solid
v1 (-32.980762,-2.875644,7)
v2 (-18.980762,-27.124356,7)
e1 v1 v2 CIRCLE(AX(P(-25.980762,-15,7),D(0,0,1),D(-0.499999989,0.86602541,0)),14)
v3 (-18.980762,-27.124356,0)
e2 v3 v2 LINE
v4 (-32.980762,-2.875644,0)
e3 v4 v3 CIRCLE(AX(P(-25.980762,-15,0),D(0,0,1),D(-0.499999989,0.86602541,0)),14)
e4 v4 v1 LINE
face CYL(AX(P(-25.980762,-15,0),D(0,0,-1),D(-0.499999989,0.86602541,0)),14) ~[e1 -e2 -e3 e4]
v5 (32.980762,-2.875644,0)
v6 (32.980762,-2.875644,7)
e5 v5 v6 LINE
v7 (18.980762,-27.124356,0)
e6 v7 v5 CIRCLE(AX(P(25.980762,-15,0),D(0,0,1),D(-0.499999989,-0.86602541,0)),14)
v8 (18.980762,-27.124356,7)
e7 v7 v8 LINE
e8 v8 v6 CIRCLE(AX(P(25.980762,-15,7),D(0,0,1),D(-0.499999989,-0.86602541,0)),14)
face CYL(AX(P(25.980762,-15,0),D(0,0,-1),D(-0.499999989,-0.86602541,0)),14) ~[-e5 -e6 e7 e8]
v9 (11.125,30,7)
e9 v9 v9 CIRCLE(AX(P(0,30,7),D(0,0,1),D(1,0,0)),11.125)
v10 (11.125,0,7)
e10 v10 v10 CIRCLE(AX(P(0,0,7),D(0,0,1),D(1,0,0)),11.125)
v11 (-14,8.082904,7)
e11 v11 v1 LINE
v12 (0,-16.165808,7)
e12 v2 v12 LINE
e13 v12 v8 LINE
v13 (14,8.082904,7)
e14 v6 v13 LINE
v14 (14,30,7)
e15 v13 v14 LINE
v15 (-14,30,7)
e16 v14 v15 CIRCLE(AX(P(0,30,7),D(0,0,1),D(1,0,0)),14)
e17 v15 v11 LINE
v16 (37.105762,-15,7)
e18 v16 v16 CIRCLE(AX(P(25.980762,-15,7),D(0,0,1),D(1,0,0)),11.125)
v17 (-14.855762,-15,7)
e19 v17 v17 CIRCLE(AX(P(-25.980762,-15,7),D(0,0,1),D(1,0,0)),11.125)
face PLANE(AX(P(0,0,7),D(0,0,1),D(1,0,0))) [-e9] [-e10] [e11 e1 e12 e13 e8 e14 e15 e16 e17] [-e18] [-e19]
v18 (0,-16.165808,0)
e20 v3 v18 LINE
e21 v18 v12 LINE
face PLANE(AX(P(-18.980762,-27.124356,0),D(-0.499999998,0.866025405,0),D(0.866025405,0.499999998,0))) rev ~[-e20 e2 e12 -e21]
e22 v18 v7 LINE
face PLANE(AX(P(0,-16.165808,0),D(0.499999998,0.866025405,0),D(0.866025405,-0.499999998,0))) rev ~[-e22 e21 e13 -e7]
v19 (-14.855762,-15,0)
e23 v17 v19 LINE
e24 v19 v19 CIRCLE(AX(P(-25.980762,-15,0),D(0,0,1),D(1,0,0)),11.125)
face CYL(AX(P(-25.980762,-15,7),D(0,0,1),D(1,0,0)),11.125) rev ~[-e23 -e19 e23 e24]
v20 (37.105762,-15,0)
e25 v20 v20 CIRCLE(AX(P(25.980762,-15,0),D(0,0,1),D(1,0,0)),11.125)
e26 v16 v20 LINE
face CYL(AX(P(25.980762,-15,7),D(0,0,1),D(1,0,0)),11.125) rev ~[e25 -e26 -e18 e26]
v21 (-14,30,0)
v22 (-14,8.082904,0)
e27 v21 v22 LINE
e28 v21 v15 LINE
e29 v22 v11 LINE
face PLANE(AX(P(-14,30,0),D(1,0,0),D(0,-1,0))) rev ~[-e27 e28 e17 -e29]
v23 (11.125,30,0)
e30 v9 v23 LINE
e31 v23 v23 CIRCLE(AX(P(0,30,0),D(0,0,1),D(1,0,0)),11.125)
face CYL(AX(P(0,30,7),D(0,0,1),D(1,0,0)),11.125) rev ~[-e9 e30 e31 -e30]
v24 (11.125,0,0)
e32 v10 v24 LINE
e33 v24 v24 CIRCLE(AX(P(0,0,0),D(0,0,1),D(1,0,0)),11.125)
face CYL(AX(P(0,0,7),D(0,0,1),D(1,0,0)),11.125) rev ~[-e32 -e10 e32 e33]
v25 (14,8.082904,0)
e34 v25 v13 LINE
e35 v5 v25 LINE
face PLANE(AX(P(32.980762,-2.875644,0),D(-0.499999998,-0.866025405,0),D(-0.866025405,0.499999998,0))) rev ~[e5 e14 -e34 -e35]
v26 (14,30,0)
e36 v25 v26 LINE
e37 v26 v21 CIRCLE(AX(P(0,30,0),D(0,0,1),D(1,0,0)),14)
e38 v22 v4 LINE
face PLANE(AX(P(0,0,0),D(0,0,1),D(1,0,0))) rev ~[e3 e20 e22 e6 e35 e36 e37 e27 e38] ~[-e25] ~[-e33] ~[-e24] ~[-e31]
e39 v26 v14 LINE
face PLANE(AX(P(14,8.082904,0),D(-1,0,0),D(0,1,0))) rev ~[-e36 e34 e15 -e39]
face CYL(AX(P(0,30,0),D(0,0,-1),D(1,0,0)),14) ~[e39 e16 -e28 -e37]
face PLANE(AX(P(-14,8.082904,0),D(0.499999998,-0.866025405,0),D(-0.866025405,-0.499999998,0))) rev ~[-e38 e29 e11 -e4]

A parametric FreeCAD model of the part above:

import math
import FreeCAD as App
import Part
import Sketcher
from FreeCAD import Vector

doc = App.newDocument("Part")
params = doc.addObject("Spreadsheet::Sheet", "Params")
for row, (alias, value) in enumerate([
    ("sketch1_radius", "14 mm"),
    ("sketch1_diameter", "18.25 mm"),
    ("pad1_length", "7 mm"),
    ("sketch2_diameter", "22.25 mm"),
    ("pocket1_length", "7 mm"),
], start=1):
    params.set(f"A{row}", alias)
    params.set(f"B{row}", "=" + value)
    params.setAlias(f"B{row}", alias)

body = doc.addObject("PartDesign::Body", "Body")

# Sketch on XY plane
sketch1 = doc.addObject("Sketcher::SketchObject", "Sketch")
body.addObject(sketch1)
sketch1.AttachmentSupport = (doc.XY_Plane, [""])
sketch1.MapMode = "FlatFace"
sketch1.addGeometry([
    Part.ArcOfCircle(Part.Circle(Vector(0, 30, 0), Vector(0, 0, 1), 14), math.radians(0), math.radians(180)),  # 0
    Part.LineSegment(Vector(-14, 30, 0), Vector(-14, 8.082904, 0)),  # 1
    Part.LineSegment(Vector(-14, 8.082904, 0), Vector(-32.980762, -2.875644, 0)),  # 2
    Part.ArcOfCircle(Part.Circle(Vector(-25.980762, -15, 0), Vector(0, 0, 1), 14), math.radians(119.999999), math.radians(299.999999)),  # 3
    Part.LineSegment(Vector(-18.980762, -27.124356, 0), Vector(0, -16.165808, 0)),  # 4
    Part.LineSegment(Vector(0, -16.165808, 0), Vector(18.980762, -27.124356, 0)),  # 5
    Part.ArcOfCircle(Part.Circle(Vector(25.980762, -15, 0), Vector(0, 0, 1), 14), math.radians(-119.999999), math.radians(60.000001)),  # 6
    Part.LineSegment(Vector(32.980762, -2.875644, 0), Vector(14, 8.082904, 0)),  # 7
    Part.LineSegment(Vector(14, 8.082904, 0), Vector(14, 30, 0)),  # 8
    Part.Circle(Vector(-25.980762, -15, 0), Vector(0, 0, 1), 9.125),  # 9
    Part.Circle(Vector(25.980762, -15, 0), Vector(0, 0, 1), 9.125),  # 10
    Part.Circle(Vector(0, 0, 0), Vector(0, 0, 1), 9.125),  # 11
    Part.Circle(Vector(0, 30, 0), Vector(0, 0, 1), 9.125),  # 12
], False)
sketch1.addConstraint([
    Sketcher.Constraint("Tangent", 0, 2, 1, 1),
    Sketcher.Constraint("Coincident", 1, 2, 2, 1),
    Sketcher.Constraint("Tangent", 2, 2, 3, 1),
    Sketcher.Constraint("Tangent", 3, 2, 4, 1),
    Sketcher.Constraint("Coincident", 4, 2, 5, 1),
    Sketcher.Constraint("Tangent", 5, 2, 6, 1),
    Sketcher.Constraint("Tangent", 6, 2, 7, 1),
    Sketcher.Constraint("Coincident", 7, 2, 8, 1),
    Sketcher.Constraint("Tangent", 8, 2, 0, 1),
    Sketcher.Constraint("Vertical", 1),
    Sketcher.Constraint("Vertical", 8),
    Sketcher.Constraint("Coincident", 11, 3, -1, 1),
    Sketcher.Constraint("Coincident", 9, 3, 3, 3),
    Sketcher.Constraint("Coincident", 10, 3, 6, 3),
    Sketcher.Constraint("Coincident", 12, 3, 0, 3),
    Sketcher.Constraint("Equal", 0, 3),
    Sketcher.Constraint("Equal", 3, 6),
    Sketcher.Constraint("Equal", 9, 10),
    Sketcher.Constraint("Equal", 10, 11),
    Sketcher.Constraint("Equal", 11, 12),
    Sketcher.Constraint("Symmetric", 3, 3, 6, 3, -2),
    Sketcher.Constraint("Symmetric", 1, 2, 7, 2, -2),
    Sketcher.Constraint("PointOnObject", 4, 2, -2),
    Sketcher.Constraint("Parallel", 2, 4),
    Sketcher.Constraint("Equal", 2, 4),
    Sketcher.Constraint("Radius", 0, 14.0),
    Sketcher.Constraint("Diameter", 9, 18.25),
    Sketcher.Constraint("DistanceY", -1, 1, 0, 3, 30.0),
    Sketcher.Constraint("DistanceY", 3, 3, -1, 1, 15.0),
    Sketcher.Constraint("DistanceY", 1, 2, 1, 1, 21.917096),
])
sketch1.setExpression("Constraints[25]", "Params.sketch1_radius")
sketch1.setExpression("Constraints[26]", "Params.sketch1_diameter")
pad1 = doc.addObject("PartDesign::Pad", "Pad")
body.addObject(pad1)
pad1.Profile = sketch1
pad1.setExpression("Length", "Params.pad1_length")

# Sketch on XY plane
sketch2 = doc.addObject("Sketcher::SketchObject", "Sketch001")
body.addObject(sketch2)
sketch2.AttachmentSupport = (doc.XY_Plane, [""])
sketch2.MapMode = "FlatFace"
sketch2.AttachmentOffset = App.Placement(Vector(0, 0, 7), App.Rotation())
sketch2.addGeometry([
    Part.Circle(Vector(0, 30, 0), Vector(0, 0, 1), 11.125),
    Part.Circle(Vector(25.980762, -15, 0), Vector(0, 0, 1), 11.125),
    Part.Circle(Vector(-25.980762, -15, 0), Vector(0, 0, 1), 11.125),
    Part.Circle(Vector(0, 0, 0), Vector(0, 0, 1), 11.125),
], False)
sketch2.addConstraint([
    Sketcher.Constraint("Coincident", 3, 3, -1, 1),
    Sketcher.Constraint("Equal", 0, 1),
    Sketcher.Constraint("Equal", 1, 2),
    Sketcher.Constraint("Equal", 2, 3),
    Sketcher.Constraint("Symmetric", 1, 3, 2, 3, -2),
    Sketcher.Constraint("PointOnObject", 0, 3, -2),
    Sketcher.Constraint("Diameter", 0, 22.25),
    Sketcher.Constraint("DistanceY", -1, 1, 0, 3, 30.0),
    Sketcher.Constraint("DistanceY", 1, 3, -1, 1, 15.0),
    Sketcher.Constraint("DistanceX", -1, 1, 1, 3, 25.980762),
])
sketch2.setExpression("Constraints[6]", "Params.sketch2_diameter")
pocket1 = doc.addObject("PartDesign::Pocket", "Pocket")
body.addObject(pocket1)
pocket1.Profile = sketch2
pocket1.setExpression("Length", "Params.pocket1_length")

doc.recompute()
